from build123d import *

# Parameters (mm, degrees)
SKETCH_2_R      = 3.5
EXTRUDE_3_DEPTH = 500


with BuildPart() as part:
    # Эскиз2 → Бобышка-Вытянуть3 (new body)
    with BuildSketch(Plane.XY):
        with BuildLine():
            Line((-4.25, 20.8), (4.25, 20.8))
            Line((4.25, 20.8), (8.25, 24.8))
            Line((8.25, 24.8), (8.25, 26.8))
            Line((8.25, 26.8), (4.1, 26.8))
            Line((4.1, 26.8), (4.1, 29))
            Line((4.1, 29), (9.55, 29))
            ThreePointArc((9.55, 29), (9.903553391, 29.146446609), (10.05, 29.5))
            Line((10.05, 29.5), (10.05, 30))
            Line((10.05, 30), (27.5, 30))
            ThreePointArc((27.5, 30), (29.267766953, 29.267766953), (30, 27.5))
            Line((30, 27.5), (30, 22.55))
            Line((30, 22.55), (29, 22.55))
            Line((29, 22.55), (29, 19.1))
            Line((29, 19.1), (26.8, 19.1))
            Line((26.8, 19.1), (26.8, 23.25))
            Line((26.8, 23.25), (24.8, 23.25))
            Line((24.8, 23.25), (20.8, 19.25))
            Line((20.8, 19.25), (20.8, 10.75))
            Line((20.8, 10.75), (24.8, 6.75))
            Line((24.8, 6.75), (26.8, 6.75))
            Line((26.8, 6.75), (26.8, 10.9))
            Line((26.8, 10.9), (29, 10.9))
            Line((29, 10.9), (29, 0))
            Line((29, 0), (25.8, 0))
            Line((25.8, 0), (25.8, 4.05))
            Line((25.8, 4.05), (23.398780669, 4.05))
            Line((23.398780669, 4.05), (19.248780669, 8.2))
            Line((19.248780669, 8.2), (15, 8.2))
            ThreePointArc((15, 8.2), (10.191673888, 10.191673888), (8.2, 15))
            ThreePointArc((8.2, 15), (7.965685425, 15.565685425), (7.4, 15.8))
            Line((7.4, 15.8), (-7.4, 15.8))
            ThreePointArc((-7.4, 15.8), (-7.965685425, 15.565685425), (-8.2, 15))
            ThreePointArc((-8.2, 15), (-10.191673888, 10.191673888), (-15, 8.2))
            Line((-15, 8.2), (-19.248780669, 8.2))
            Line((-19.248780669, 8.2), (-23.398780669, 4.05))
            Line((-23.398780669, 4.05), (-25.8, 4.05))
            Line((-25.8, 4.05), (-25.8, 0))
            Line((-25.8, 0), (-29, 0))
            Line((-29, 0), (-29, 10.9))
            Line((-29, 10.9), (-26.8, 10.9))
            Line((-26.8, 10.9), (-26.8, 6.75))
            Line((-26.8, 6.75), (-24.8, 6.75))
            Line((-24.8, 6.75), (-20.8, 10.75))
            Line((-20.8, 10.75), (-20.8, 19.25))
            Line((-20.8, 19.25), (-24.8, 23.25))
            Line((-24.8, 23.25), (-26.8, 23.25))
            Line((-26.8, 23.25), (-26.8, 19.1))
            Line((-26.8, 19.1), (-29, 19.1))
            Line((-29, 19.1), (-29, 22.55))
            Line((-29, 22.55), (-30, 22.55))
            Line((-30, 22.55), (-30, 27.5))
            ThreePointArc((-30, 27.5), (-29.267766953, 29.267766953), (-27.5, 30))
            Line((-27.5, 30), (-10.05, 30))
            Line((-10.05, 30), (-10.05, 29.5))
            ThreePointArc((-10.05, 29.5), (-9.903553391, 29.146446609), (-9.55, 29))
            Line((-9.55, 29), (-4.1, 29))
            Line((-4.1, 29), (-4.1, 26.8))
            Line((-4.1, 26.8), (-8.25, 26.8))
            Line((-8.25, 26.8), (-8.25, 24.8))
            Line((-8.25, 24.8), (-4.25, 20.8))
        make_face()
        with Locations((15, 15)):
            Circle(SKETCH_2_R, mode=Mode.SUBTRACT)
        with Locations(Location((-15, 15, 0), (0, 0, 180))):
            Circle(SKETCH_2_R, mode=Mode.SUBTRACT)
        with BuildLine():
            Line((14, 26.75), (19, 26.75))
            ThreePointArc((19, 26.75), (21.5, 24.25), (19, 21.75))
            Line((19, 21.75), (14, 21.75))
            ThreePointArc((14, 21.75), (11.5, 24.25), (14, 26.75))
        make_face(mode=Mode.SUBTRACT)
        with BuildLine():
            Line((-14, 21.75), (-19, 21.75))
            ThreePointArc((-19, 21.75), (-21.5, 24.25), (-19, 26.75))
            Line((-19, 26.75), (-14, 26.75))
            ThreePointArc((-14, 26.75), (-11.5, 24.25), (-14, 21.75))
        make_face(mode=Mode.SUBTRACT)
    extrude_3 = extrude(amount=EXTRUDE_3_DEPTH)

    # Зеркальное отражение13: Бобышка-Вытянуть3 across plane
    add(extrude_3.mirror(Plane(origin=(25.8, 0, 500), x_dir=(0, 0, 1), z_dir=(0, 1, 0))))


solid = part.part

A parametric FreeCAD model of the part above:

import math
import FreeCAD as App
import Part
import Sketcher
from FreeCAD import Vector

doc = App.newDocument("Part")
body = doc.addObject("PartDesign::Body", "Body")

# Sketch on XY plane
sketch1 = body.newObject("Sketcher::SketchObject", "Sketch")
sketch1.AttachmentSupport = (doc.getObject("XY_Plane"), [""])
sketch1.MapMode = "FlatFace"
sketch1.addGeometry([
    Part.LineSegment(Vector(4.25, 20.8, 0), Vector(-4.25, 20.8, 0)),  # 0
    Part.LineSegment(Vector(-4.25, 20.8, 0), Vector(-8.25, 24.8, 0)),  # 1
    Part.LineSegment(Vector(-8.25, 24.8, 0), Vector(-8.25, 26.8, 0)),  # 2
    Part.LineSegment(Vector(-8.25, 26.8, 0), Vector(-4.1, 26.8, 0)),  # 3
    Part.LineSegment(Vector(-4.1, 26.8, 0), Vector(-4.1, 29, 0)),  # 4
    Part.LineSegment(Vector(-4.1, 29, 0), Vector(-9.55, 29, 0)),  # 5
    Part.ArcOfCircle(Part.Circle(Vector(-9.55, 29.5, 0), Vector(0, 0, 1), 0.5), math.radians(180), math.radians(270)),  # 6
    Part.LineSegment(Vector(-10.05, 29.5, 0), Vector(-10.05, 30, 0)),  # 7
    Part.LineSegment(Vector(-10.05, 30, 0), Vector(-27.5, 30, 0)),  # 8
    Part.ArcOfCircle(Part.Circle(Vector(-27.5, 27.5, 0), Vector(0, 0, 1), 2.5), math.radians(90), math.radians(180)),  # 9
    Part.LineSegment(Vector(-30, 27.5, 0), Vector(-30, 22.55, 0)),  # 10
    Part.LineSegment(Vector(-30, 22.55, 0), Vector(-29, 22.55, 0)),  # 11
    Part.LineSegment(Vector(-29, 22.55, 0), Vector(-29, 19.1, 0)),  # 12
    Part.LineSegment(Vector(-29, 19.1, 0), Vector(-26.8, 19.1, 0)),  # 13
    Part.LineSegment(Vector(-26.8, 19.1, 0), Vector(-26.8, 23.25, 0)),  # 14
    Part.LineSegment(Vector(-26.8, 23.25, 0), Vector(-24.8, 23.25, 0)),  # 15
    Part.LineSegment(Vector(-24.8, 23.25, 0), Vector(-20.8, 19.25, 0)),  # 16
    Part.LineSegment(Vector(-20.8, 19.25, 0), Vector(-20.8, 10.75, 0)),  # 17
    Part.LineSegment(Vector(-20.8, 10.75, 0), Vector(-24.8, 6.75, 0)),  # 18
    Part.LineSegment(Vector(-24.8, 6.75, 0), Vector(-26.8, 6.75, 0)),  # 19
    Part.LineSegment(Vector(-26.8, 6.75, 0), Vector(-26.8, 10.9, 0)),  # 20
    Part.LineSegment(Vector(-26.8, 10.9, 0), Vector(-29, 10.9, 0)),  # 21
    Part.LineSegment(Vector(-29, 10.9, 0), Vector(-29, 0, 0)),  # 22
    Part.LineSegment(Vector(-29, 0, 0), Vector(-25.8, 0, 0)),  # 23
    Part.LineSegment(Vector(-25.8, 0, 0), Vector(-25.8, 4.05, 0)),  # 24
    Part.LineSegment(Vector(-25.8, 4.05, 0), Vector(-23.4, 4.05, 0)),  # 25
    Part.LineSegment(Vector(-23.4, 4.05, 0), Vector(-19.25, 8.2, 0)),  # 26
    Part.LineSegment(Vector(-19.25, 8.2, 0), Vector(-15, 8.2, 0)),  # 27
    Part.ArcOfCircle(Part.Circle(Vector(-15, 15, 0), Vector(0, 0, 1), 6.8), math.radians(-90), math.radians(0)),  # 28
    Part.ArcOfCircle(Part.Circle(Vector(-7.4, 15, 0), Vector(0, 0, 1), 0.8), math.radians(90), math.radians(180)),  # 29
    Part.LineSegment(Vector(-7.4, 15.8, 0), Vector(7.4, 15.8, 0)),  # 30
    Part.ArcOfCircle(Part.Circle(Vector(7.4, 15, 0), Vector(0, 0, 1), 0.8), math.radians(0), math.radians(90)),  # 31
    Part.ArcOfCircle(Part.Circle(Vector(15, 15, 0), Vector(0, 0, 1), 6.8), math.radians(180), math.radians(270)),  # 32
    Part.LineSegment(Vector(15, 8.2, 0), Vector(19.25, 8.2, 0)),  # 33
    Part.LineSegment(Vector(19.25, 8.2, 0), Vector(23.4, 4.05, 0)),  # 34
    Part.LineSegment(Vector(23.4, 4.05, 0), Vector(25.8, 4.05, 0)),  # 35
    Part.LineSegment(Vector(25.8, 4.05, 0), Vector(25.8, 0, 0)),  # 36
    Part.LineSegment(Vector(25.8, 0, 0), Vector(29, 0, 0)),  # 37
    Part.LineSegment(Vector(29, 0, 0), Vector(29, 10.9, 0)),  # 38
    Part.LineSegment(Vector(29, 10.9, 0), Vector(26.8, 10.9, 0)),  # 39
    Part.LineSegment(Vector(26.8, 10.9, 0), Vector(26.8, 6.75, 0)),  # 40
    Part.LineSegment(Vector(26.8, 6.75, 0), Vector(24.8, 6.75, 0)),  # 41
    Part.LineSegment(Vector(24.8, 6.75, 0), Vector(20.8, 10.75, 0)),  # 42
    Part.LineSegment(Vector(20.8, 10.75, 0), Vector(20.8, 19.25, 0)),  # 43
    Part.LineSegment(Vector(20.8, 19.25, 0), Vector(24.8, 23.25, 0)),  # 44
    Part.LineSegment(Vector(24.8, 23.25, 0), Vector(26.8, 23.25, 0)),  # 45
    Part.LineSegment(Vector(26.8, 23.25, 0), Vector(26.8, 19.1, 0)),  # 46
    Part.LineSegment(Vector(26.8, 19.1, 0), Vector(29, 19.1, 0)),  # 47
    Part.LineSegment(Vector(29, 19.1, 0), Vector(29, 22.55, 0)),  # 48
    Part.LineSegment(Vector(29, 22.55, 0), Vector(30, 22.55, 0)),  # 49
    Part.LineSegment(Vector(30, 22.55, 0), Vector(30, 27.5, 0)),  # 50
    Part.ArcOfCircle(Part.Circle(Vector(27.5, 27.5, 0), Vector(0, 0, 1), 2.5), math.radians(0), math.radians(90)),  # 51
    Part.LineSegment(Vector(27.5, 30, 0), Vector(10.05, 30, 0)),  # 52
    Part.LineSegment(Vector(10.05, 30, 0), Vector(10.05, 29.5, 0)),  # 53
    Part.ArcOfCircle(Part.Circle(Vector(9.55, 29.5, 0), Vector(0, 0, 1), 0.5), math.radians(-90), math.radians(0)),  # 54
    Part.LineSegment(Vector(9.55, 29, 0), Vector(4.1, 29, 0)),  # 55
    Part.LineSegment(Vector(4.1, 29, 0), Vector(4.1, 26.8, 0)),  # 56
    Part.LineSegment(Vector(4.1, 26.8, 0), Vector(8.25, 26.8, 0)),  # 57
    Part.LineSegment(Vector(8.25, 26.8, 0), Vector(8.25, 24.8, 0)),  # 58
    Part.LineSegment(Vector(8.25, 24.8, 0), Vector(4.25, 20.8, 0)),  # 59
    Part.Circle(Vector(15, 15, 0), Vector(0, 0, 1), 3.5),  # 60
    Part.Circle(Vector(-15, 15, 0), Vector(0, 0, 1), 3.5),  # 61
    Part.LineSegment(Vector(14, 26.75, 0), Vector(19, 26.75, 0)),  # 62
    Part.ArcOfCircle(Part.Circle(Vector(19, 24.25, 0), Vector(0, 0, 1), 2.5), math.radians(-90), math.radians(90)),  # 63
    Part.LineSegment(Vector(19, 21.75, 0), Vector(14, 21.75, 0)),  # 64
    Part.ArcOfCircle(Part.Circle(Vector(14, 24.25, 0), Vector(0, 0, 1), 2.5), math.radians(90), math.radians(270)),  # 65
    Part.LineSegment(Vector(-14, 21.75, 0), Vector(-19, 21.75, 0)),  # 66
    Part.ArcOfCircle(Part.Circle(Vector(-19, 24.25, 0), Vector(0, 0, 1), 2.5), math.radians(90), math.radians(270)),  # 67
    Part.LineSegment(Vector(-19, 26.75, 0), Vector(-14, 26.75, 0)),  # 68
    Part.ArcOfCircle(Part.Circle(Vector(-14, 24.25, 0), Vector(0, 0, 1), 2.5), math.radians(-90), math.radians(90)),  # 69
], False)
sketch1.addConstraint([
    Sketcher.Constraint("Coincident", 0, 2, 1, 1),
    Sketcher.Constraint("Coincident", 1, 2, 2, 1),
    Sketcher.Constraint("Coincident", 2, 2, 3, 1),
    Sketcher.Constraint("Coincident", 3, 2, 4, 1),
    Sketcher.Constraint("Coincident", 4, 2, 5, 1),
    Sketcher.Constraint("Tangent", 5, 2, 6, 2),
    Sketcher.Constraint("Tangent", 6, 1, 7, 1),
    Sketcher.Constraint("Coincident", 7, 2, 8, 1),
    Sketcher.Constraint("Tangent", 8, 2, 9, 1),
    Sketcher.Constraint("Tangent", 9, 2, 10, 1),
    Sketcher.Constraint("Coincident", 10, 2, 11, 1),
    Sketcher.Constraint("Coincident", 11, 2, 12, 1),
    Sketcher.Constraint("Coincident", 12, 2, 13, 1),
    Sketcher.Constraint("Coincident", 13, 2, 14, 1),
    Sketcher.Constraint("Coincident", 14, 2, 15, 1),
    Sketcher.Constraint("Coincident", 15, 2, 16, 1),
    Sketcher.Constraint("Coincident", 16, 2, 17, 1),
    Sketcher.Constraint("Coincident", 17, 2, 18, 1),
    Sketcher.Constraint("Coincident", 18, 2, 19, 1),
    Sketcher.Constraint("Coincident", 19, 2, 20, 1),
    Sketcher.Constraint("Coincident", 20, 2, 21, 1),
    Sketcher.Constraint("Coincident", 21, 2, 22, 1),
    Sketcher.Constraint("Coincident", 22, 2, 23, 1),
    Sketcher.Constraint("Coincident", 23, 2, 24, 1),
    Sketcher.Constraint("Coincident", 24, 2, 25, 1),
    Sketcher.Constraint("Coincident", 25, 2, 26, 1),
    Sketcher.Constraint("Coincident", 26, 2, 27, 1),
    Sketcher.Constraint("Tangent", 27, 2, 28, 1),
    Sketcher.Constraint("Tangent", 28, 2, 29, 2),
    Sketcher.Constraint("Tangent", 29, 1, 30, 1),
    Sketcher.Constraint("Tangent", 30, 2, 31, 2),
    Sketcher.Constraint("Tangent", 31, 1, 32, 1),
    Sketcher.Constraint("Tangent", 32, 2, 33, 1),
    Sketcher.Constraint("Coincident", 33, 2, 34, 1),
    Sketcher.Constraint("Coincident", 34, 2, 35, 1),
    Sketcher.Constraint("Coincident", 35, 2, 36, 1),
    Sketcher.Constraint("Coincident", 36, 2, 37, 1),
    Sketcher.Constraint("Coincident", 37, 2, 38, 1),
    Sketcher.Constraint("Coincident", 38, 2, 39, 1),
    Sketcher.Constraint("Coincident", 39, 2, 40, 1),
    Sketcher.Constraint("Coincident", 40, 2, 41, 1),
    Sketcher.Constraint("Coincident", 41, 2, 42, 1),
    Sketcher.Constraint("Coincident", 42, 2, 43, 1),
    Sketcher.Constraint("Coincident", 43, 2, 44, 1),
    Sketcher.Constraint("Coincident", 44, 2, 45, 1),
    Sketcher.Constraint("Coincident", 45, 2, 46, 1),
    Sketcher.Constraint("Coincident", 46, 2, 47, 1),
    Sketcher.Constraint("Coincident", 47, 2, 48, 1),
    Sketcher.Constraint("Coincident", 48, 2, 49, 1),
    Sketcher.Constraint("Coincident", 49, 2, 50, 1),
    Sketcher.Constraint("Tangent", 50, 2, 51, 1),
    Sketcher.Constraint("Tangent", 51, 2, 52, 1),
    Sketcher.Constraint("Coincident", 52, 2, 53, 1),
    Sketcher.Constraint("Tangent", 53, 2, 54, 2),
    Sketcher.Constraint("Tangent", 54, 1, 55, 1),
    Sketcher.Constraint("Coincident", 55, 2, 56, 1),
    Sketcher.Constraint("Coincident", 56, 2, 57, 1),
    Sketcher.Constraint("Coincident", 57, 2, 58, 1),
    Sketcher.Constraint("Coincident", 58, 2, 59, 1),
    Sketcher.Constraint("Coincident", 59, 2, 0, 1),
    Sketcher.Constraint("Tangent", 62, 2, 63, 2),
    Sketcher.Constraint("Tangent", 63, 1, 64, 1),
    Sketcher.Constraint("Tangent", 64, 2, 65, 2),
    Sketcher.Constraint("Tangent", 65, 1, 62, 1),
    Sketcher.Constraint("Tangent", 66, 2, 67, 2),
    Sketcher.Constraint("Tangent", 67, 1, 68, 1),
    Sketcher.Constraint("Tangent", 68, 2, 69, 2),
    Sketcher.Constraint("Tangent", 69, 1, 66, 1),
    Sketcher.Constraint("Horizontal", 0),
    Sketcher.Constraint("Vertical", 2),
    Sketcher.Constraint("Horizontal", 3),
    Sketcher.Constraint("Vertical", 4),
    Sketcher.Constraint("Horizontal", 5),
    Sketcher.Constraint("Vertical", 7),
    Sketcher.Constraint("Horizontal", 8),
    Sketcher.Constraint("Vertical", 10),
    Sketcher.Constraint("Horizontal", 11),
    Sketcher.Constraint("Vertical", 12),
    Sketcher.Constraint("Horizontal", 13),
    Sketcher.Constraint("Vertical", 14),
    Sketcher.Constraint("Horizontal", 15),
    Sketcher.Constraint("Vertical", 17),
    Sketcher.Constraint("Horizontal", 19),
    Sketcher.Constraint("Vertical", 20),
    Sketcher.Constraint("Horizontal", 21),
    Sketcher.Constraint("Vertical", 22),
    Sketcher.Constraint("Horizontal", 23),
    Sketcher.Constraint("Vertical", 24),
    Sketcher.Constraint("Horizontal", 25),
    Sketcher.Constraint("Horizontal", 27),
    Sketcher.Constraint("Horizontal", 30),
    Sketcher.Constraint("Horizontal", 33),
    Sketcher.Constraint("Horizontal", 35),
    Sketcher.Constraint("Vertical", 36),
    Sketcher.Constraint("Horizontal", 37),
    Sketcher.Constraint("Vertical", 38),
    Sketcher.Constraint("Horizontal", 39),
    Sketcher.Constraint("Vertical", 40),
    Sketcher.Constraint("Horizontal", 41),
    Sketcher.Constraint("Vertical", 43),
    Sketcher.Constraint("Horizontal", 45),
    Sketcher.Constraint("Vertical", 46),
    Sketcher.Constraint("Horizontal", 47),
    Sketcher.Constraint("Vertical", 48),
    Sketcher.Constraint("Horizontal", 49),
    Sketcher.Constraint("Vertical", 50),
    Sketcher.Constraint("Horizontal", 52),
    Sketcher.Constraint("Vertical", 53),
    Sketcher.Constraint("Horizontal", 55),
    Sketcher.Constraint("Vertical", 56),
    Sketcher.Constraint("Horizontal", 57),
    Sketcher.Constraint("Vertical", 58),
    Sketcher.Constraint("Horizontal", 62),
    Sketcher.Constraint("Horizontal", 64),
    Sketcher.Constraint("Horizontal", 66),
    Sketcher.Constraint("Horizontal", 68),
    Sketcher.Constraint("Coincident", 60, 3, 32, 3),
    Sketcher.Constraint("Coincident", 61, 3, 28, 3),
    Sketcher.Constraint("Equal", 29, 31),
    Sketcher.Constraint("Equal", 28, 32),
    Sketcher.Constraint("Equal", 9, 51),
    Sketcher.Constraint("Equal", 6, 54),
    Sketcher.Constraint("Equal", 60, 61),
    Sketcher.Constraint("Equal", 51, 63),
    Sketcher.Constraint("Equal", 65, 67),
    Sketcher.Constraint("Symmetric", 23, 2, 36, 2, -1, 1),
    Sketcher.Constraint("Symmetric", 28, 3, 32, 3, -2),
    Sketcher.Constraint("Symmetric", 9, 3, 51, 3, -2),
    Sketcher.Constraint("Symmetric", 6, 3, 54, 3, -2),
    Sketcher.Constraint("Symmetric", 63, 3, 67, 3, -2),
    Sketcher.Constraint("Symmetric", 25, 2, 34, 2, -2),
    Sketcher.Constraint("Symmetric", 22, 2, 37, 2, -2),
    Sketcher.Constraint("Symmetric", 20, 2, 39, 2, -2),
    Sketcher.Constraint("Symmetric", 18, 2, 41, 2, -2),
    Sketcher.Constraint("Symmetric", 17, 2, 42, 2, -2),
    Sketcher.Constraint("Symmetric", 15, 2, 44, 2, -2),
    Sketcher.Constraint("Symmetric", 13, 2, 46, 2, -2),
    Sketcher.Constraint("Symmetric", 11, 2, 48, 2, -2),
    Sketcher.Constraint("Symmetric", 3, 2, 56, 2, -2),
    Sketcher.Constraint("Symmetric", 1, 2, 58, 2, -2),
    Sketcher.Constraint("Parallel", 1, 16),
    Sketcher.Constraint("Perpendicular", 16, 18),
    Sketcher.Constraint("Parallel", 18, 26),
    Sketcher.Constraint("Perpendicular", 26, 34),
    Sketcher.Constraint("Parallel", 34, 42),
    Sketcher.Constraint("Perpendicular", 42, 44),
    Sketcher.Constraint("Parallel", 44, 59),
    Sketcher.Constraint("Horizontal", 28, 3, 29, 3),
    Sketcher.Constraint("Vertical", 15, 2, 18, 2),
    Sketcher.Constraint("Vertical", 14, 2, 19, 2),
    Sketcher.Constraint("Vertical", 12, 2, 21, 2),
    Sketcher.Constraint("Equal", 64, 66),
    Sketcher.Constraint("Equal", 45, 2),
    Sketcher.Constraint("Equal", 47, 4),
    Sketcher.Constraint("Equal", 57, 14),
    Sketcher.Constraint("Equal", 0, 17),
    Sketcher.Constraint("Equal", 14, 20),
    Sketcher.Constraint("Equal", 1, 16),
    Sketcher.Constraint("Diameter", 60, 7.0),
    Sketcher.Constraint("Radius", 6, 0.5),
    Sketcher.Constraint("Radius", 9, 2.5),
    Sketcher.Constraint("Radius", 28, 6.8),
    Sketcher.Constraint("Radius", 29, 0.8),
    Sketcher.Constraint("DistanceX", 11, 1, 11, 2, 1.0),
    Sketcher.Constraint("DistanceX", 15, 1, 15, 2, 2.0),
    Sketcher.Constraint("DistanceX", 62, 1, 62, 2, 5.0),
    Sketcher.Constraint("DistanceX", 0, 2, 0, 1, 8.5),
    Sketcher.Constraint("DistanceX", 13, 1, 13, 2, 2.2),
    Sketcher.Constraint("DistanceX", 23, 1, 23, 2, 3.2),
    Sketcher.Constraint("DistanceX", 30, 1, 30, 2, 14.8),
    Sketcher.Constraint("DistanceY", 7, 1, 7, 2, 0.5),
    Sketcher.Constraint("DistanceY", 22, 2, 22, 1, 10.9),
    Sketcher.Constraint("DistanceY", -1, 1, 28, 3, 15.0),
    Sketcher.Constraint("DistanceX", -1, 1, 63, 3, 19.0),
    Sketcher.Constraint("DistanceY", -1, 1, 4, 2, 29.0),
    Sketcher.Constraint("DistanceX", 9, 2, -1, 1, 30.0),
    Sketcher.Constraint("DistanceX", 3, 1, 3, 2, 4.15),
    Sketcher.Constraint("DistanceX", 5, 2, 5, 1, 5.45),
    Sketcher.Constraint("DistanceX", 8, 2, 8, 1, 17.45),
    Sketcher.Constraint("DistanceY", 10, 2, 10, 1, 4.95),
    Sketcher.Constraint("DistanceY", 24, 1, 24, 2, 4.05),
    Sketcher.Constraint("DistanceY", -1, 1, 63, 3, 24.25),
    Sketcher.Constraint("DistanceX", 25, 1, 25, 2, 2.401219),
])
pad1 = body.newObject("PartDesign::Pad", "Pad")
pad1.Profile = sketch1
pad1.Length = 500
doc.recompute()

mirrored = body.newObject("PartDesign::Mirrored", "Mirrored")
mirrored.Originals = [pad1]
mirrored.MirrorPlane = (doc.getObject("XZ_Plane"), [""])
body.Tip = mirrored

doc.recompute()
